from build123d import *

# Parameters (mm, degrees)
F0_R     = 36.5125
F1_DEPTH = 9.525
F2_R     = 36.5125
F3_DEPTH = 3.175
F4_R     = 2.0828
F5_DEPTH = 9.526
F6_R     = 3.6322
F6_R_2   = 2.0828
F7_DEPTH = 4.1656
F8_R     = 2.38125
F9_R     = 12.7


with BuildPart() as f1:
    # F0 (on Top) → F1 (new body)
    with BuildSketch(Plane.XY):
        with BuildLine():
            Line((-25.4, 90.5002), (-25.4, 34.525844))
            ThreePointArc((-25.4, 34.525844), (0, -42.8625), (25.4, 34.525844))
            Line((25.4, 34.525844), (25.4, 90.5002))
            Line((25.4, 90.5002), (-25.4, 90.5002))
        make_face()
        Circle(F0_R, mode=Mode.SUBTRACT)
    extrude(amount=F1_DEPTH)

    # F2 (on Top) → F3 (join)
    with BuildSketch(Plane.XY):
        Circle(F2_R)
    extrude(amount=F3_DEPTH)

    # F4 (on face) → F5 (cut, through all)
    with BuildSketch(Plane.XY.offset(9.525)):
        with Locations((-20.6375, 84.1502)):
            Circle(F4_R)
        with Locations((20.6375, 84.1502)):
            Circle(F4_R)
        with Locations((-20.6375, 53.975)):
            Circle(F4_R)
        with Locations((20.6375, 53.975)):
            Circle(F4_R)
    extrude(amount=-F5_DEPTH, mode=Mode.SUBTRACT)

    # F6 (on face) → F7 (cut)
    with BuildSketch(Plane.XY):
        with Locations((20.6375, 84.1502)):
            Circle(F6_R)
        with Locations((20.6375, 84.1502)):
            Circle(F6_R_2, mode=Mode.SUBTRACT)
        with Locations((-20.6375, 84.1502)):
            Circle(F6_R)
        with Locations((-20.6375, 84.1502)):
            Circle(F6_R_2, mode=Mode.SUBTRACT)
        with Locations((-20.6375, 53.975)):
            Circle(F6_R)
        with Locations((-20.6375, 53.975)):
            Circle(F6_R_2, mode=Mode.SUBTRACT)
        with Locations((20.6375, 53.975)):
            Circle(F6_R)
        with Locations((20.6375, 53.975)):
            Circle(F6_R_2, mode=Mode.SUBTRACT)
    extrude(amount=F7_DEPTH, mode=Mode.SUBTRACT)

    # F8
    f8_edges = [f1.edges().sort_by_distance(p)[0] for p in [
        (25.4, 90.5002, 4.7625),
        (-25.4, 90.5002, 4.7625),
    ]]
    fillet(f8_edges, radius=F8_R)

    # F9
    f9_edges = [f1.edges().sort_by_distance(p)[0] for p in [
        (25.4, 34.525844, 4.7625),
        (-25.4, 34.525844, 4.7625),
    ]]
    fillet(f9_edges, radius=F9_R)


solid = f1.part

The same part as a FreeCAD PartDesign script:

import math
import FreeCAD as App
import Part
import Sketcher

V = App.Vector
Q = App.Units.Quantity


def edges_at(feature, points):
    """Names of the edges that pass closest to the given points."""
    edges = feature.Shape.Edges
    near = lambda p: min(range(len(edges)), key=lambda i: edges[i].distToShape(Part.Vertex(*p))[0])
    return sorted({f"Edge{near(p) + 1}" for p in points})

doc = App.newDocument("Part")
body = doc.addObject("PartDesign::Body", "Body")

sketch1 = body.newObject("Sketcher::SketchObject", "Sketch")
sketch1.AttachmentSupport = (doc.getObject("XY_Plane"), [""])
sketch1.MapMode = "FlatFace"
sketch1.addGeometry(Part.LineSegment(V(-25, 91, 0), V(-25, 35, 0)), False)
sketch1.addGeometry(Part.ArcOfCircle(Part.Circle(V(0, 0, 0), V(0, 0, 1), 43), math.radians(126), math.radians(414)), False)
sketch1.addGeometry(Part.LineSegment(V(25, 35, 0), V(25, 91, 0)), False)
sketch1.addGeometry(Part.LineSegment(V(25, 91, 0), V(-25, 91, 0)), False)
sketch1.addGeometry(Part.Circle(V(0, 0, 0), V(0, 0, 1), 37), False)
sketch1.addConstraint(Sketcher.Constraint("Coincident", 0, 2, 1, 1))
sketch1.addConstraint(Sketcher.Constraint("Coincident", 1, 2, 2, 1))
sketch1.addConstraint(Sketcher.Constraint("Coincident", 2, 2, 3, 1))
sketch1.addConstraint(Sketcher.Constraint("Coincident", 3, 2, 0, 1))
sketch1.addConstraint(Sketcher.Constraint("Vertical", 0))
sketch1.addConstraint(Sketcher.Constraint("Vertical", 2))
sketch1.addConstraint(Sketcher.Constraint("Horizontal", 3))
sketch1.addConstraint(Sketcher.Constraint("Coincident", 1, 3, -1, 1))
sketch1.addConstraint(Sketcher.Constraint("Coincident", 4, 3, -1, 1))
sketch1.addConstraint(Sketcher.Constraint("Horizontal", 0, 2, 1, 2))
sketch1.addConstraint(Sketcher.Constraint("DistanceX", 3, 2, 3, 1, Q("2 in")))
sketch1.addConstraint(Sketcher.Constraint("Diameter", 4, Q("2.875 in")))
sketch1.addConstraint(Sketcher.Constraint("Radius", 1, Q("1.6875 in")))
sketch1.addConstraint(Sketcher.Constraint("DistanceY", -1, 1, 2, 2, Q("3.563 in")))
pad1 = body.newObject("PartDesign::Pad", "Pad")
pad1.Profile = sketch1
pad1.Length = Q("0.375 in")

sketch2 = body.newObject("Sketcher::SketchObject", "Sketch001")
sketch2.AttachmentSupport = (doc.getObject("XY_Plane"), [""])
sketch2.MapMode = "FlatFace"
sketch2.addGeometry(Part.Circle(V(0, 0, 0), V(0, 0, 1), 37), False)
sketch2.addConstraint(Sketcher.Constraint("Coincident", 0, 3, -1, 1))
sketch2.addConstraint(Sketcher.Constraint("Diameter", 0, Q("2.875 in")))
pad2 = body.newObject("PartDesign::Pad", "Pad001")
pad2.Profile = sketch2
pad2.Length = Q("0.125 in")

sketch3 = body.newObject("Sketcher::SketchObject", "Sketch002")
sketch3.AttachmentSupport = (doc.getObject("XY_Plane"), [""])
sketch3.MapMode = "FlatFace"
sketch3.AttachmentOffset = App.Placement(V(0, 0, 0.375 * 25.4), App.Rotation())
sketch3.addGeometry(Part.Circle(V(-20.6, 84.2, 0), V(0, 0, 1), 2.1), False)
sketch3.addGeometry(Part.Circle(V(20.6, 84.2, 0), V(0, 0, 1), 2.1), False)
sketch3.addGeometry(Part.Circle(V(-20.6, 54, 0), V(0, 0, 1), 2.1), False)
sketch3.addGeometry(Part.Circle(V(20.6, 54, 0), V(0, 0, 1), 2.1), False)
sketch3.addConstraint(Sketcher.Constraint("Equal", 0, 1))
sketch3.addConstraint(Sketcher.Constraint("Equal", 1, 2))
sketch3.addConstraint(Sketcher.Constraint("Equal", 2, 3))
sketch3.addConstraint(Sketcher.Constraint("Symmetric", 0, 3, 1, 3, -2))
sketch3.addConstraint(Sketcher.Constraint("Symmetric", 2, 3, 3, 3, -2))
sketch3.addConstraint(Sketcher.Constraint("Vertical", 0, 3, 2, 3))
sketch3.addConstraint(Sketcher.Constraint("Diameter", 0, Q("0.164 in")))
sketch3.addConstraint(Sketcher.Constraint("DistanceX", 0, 3, -1, 1, Q("0.8125 in")))
sketch3.addConstraint(Sketcher.Constraint("DistanceY", -1, 1, 0, 3, Q("3.313 in")))
sketch3.addConstraint(Sketcher.Constraint("DistanceY", -1, 1, 2, 3, Q("2.125 in")))
pocket1 = body.newObject("PartDesign::Pocket", "Pocket")
pocket1.Profile = sketch3
pocket1.Type = "ThroughAll"

sketch4 = body.newObject("Sketcher::SketchObject", "Sketch003")
sketch4.AttachmentSupport = (doc.getObject("XY_Plane"), [""])
sketch4.MapMode = "FlatFace"
sketch4.addGeometry(Part.Circle(V(20.6, 84.2, 0), V(0, 0, 1), 3.6), False)
sketch4.addGeometry(Part.Circle(V(20.6, 84.2, 0), V(0, 0, 1), 2.1), False)
sketch4.addGeometry(Part.Circle(V(-20.6, 84.2, 0), V(0, 0, 1), 3.6), False)
sketch4.addGeometry(Part.Circle(V(-20.6, 84.2, 0), V(0, 0, 1), 2.1), False)
sketch4.addGeometry(Part.Circle(V(-20.6, 54, 0), V(0, 0, 1), 3.6), False)
sketch4.addGeometry(Part.Circle(V(-20.6, 54, 0), V(0, 0, 1), 2.1), False)
sketch4.addGeometry(Part.Circle(V(20.6, 54, 0), V(0, 0, 1), 3.6), False)
sketch4.addGeometry(Part.Circle(V(20.6, 54, 0), V(0, 0, 1), 2.1), False)
sketch4.addConstraint(Sketcher.Constraint("Coincident", 1, 3, 0, 3))
sketch4.addConstraint(Sketcher.Constraint("Coincident", 3, 3, 2, 3))
sketch4.addConstraint(Sketcher.Constraint("Coincident", 5, 3, 4, 3))
sketch4.addConstraint(Sketcher.Constraint("Coincident", 7, 3, 6, 3))
sketch4.addConstraint(Sketcher.Constraint("Equal", 0, 2))
sketch4.addConstraint(Sketcher.Constraint("Equal", 1, 3))
sketch4.addConstraint(Sketcher.Constraint("Equal", 2, 4))
sketch4.addConstraint(Sketcher.Constraint("Equal", 3, 5))
sketch4.addConstraint(Sketcher.Constraint("Equal", 4, 6))
sketch4.addConstraint(Sketcher.Constraint("Equal", 5, 7))
sketch4.addConstraint(Sketcher.Constraint("Symmetric", 0, 3, 2, 3, -2))
sketch4.addConstraint(Sketcher.Constraint("Symmetric", 4, 3, 6, 3, -2))
sketch4.addConstraint(Sketcher.Constraint("Vertical", 3, 3, 4, 3))
sketch4.addConstraint(Sketcher.Constraint("Diameter", 0, Q("0.286 in")))
sketch4.addConstraint(Sketcher.Constraint("Diameter", 1, Q("0.164 in")))
sketch4.addConstraint(Sketcher.Constraint("DistanceX", -1, 1, 0, 3, Q("0.8125 in")))
sketch4.addConstraint(Sketcher.Constraint("DistanceY", -1, 1, 0, 3, Q("3.313 in")))
sketch4.addConstraint(Sketcher.Constraint("DistanceY", -1, 1, 4, 3, Q("2.125 in")))
pocket2 = body.newObject("PartDesign::Pocket", "Pocket001")
pocket2.Profile = sketch4
pocket2.Length = Q("0.164 in")
pocket2.Reversed = True
doc.recompute()

fillet = body.newObject("PartDesign::Fillet", "Fillet")
fillet.Base = (pocket2, edges_at(pocket2, [(25.4, 90.5, 4.763), (-25.4, 90.5, 4.763)]))
fillet.Radius = Q("0.09375 in")
doc.recompute()

fillet2 = body.newObject("PartDesign::Fillet", "Fillet001")
fillet2.Base = (fillet, edges_at(fillet, [(25.4, 34.526, 4.763), (-25.4, 34.526, 4.763)]))
fillet2.Radius = Q("0.5 in")

doc.recompute()
